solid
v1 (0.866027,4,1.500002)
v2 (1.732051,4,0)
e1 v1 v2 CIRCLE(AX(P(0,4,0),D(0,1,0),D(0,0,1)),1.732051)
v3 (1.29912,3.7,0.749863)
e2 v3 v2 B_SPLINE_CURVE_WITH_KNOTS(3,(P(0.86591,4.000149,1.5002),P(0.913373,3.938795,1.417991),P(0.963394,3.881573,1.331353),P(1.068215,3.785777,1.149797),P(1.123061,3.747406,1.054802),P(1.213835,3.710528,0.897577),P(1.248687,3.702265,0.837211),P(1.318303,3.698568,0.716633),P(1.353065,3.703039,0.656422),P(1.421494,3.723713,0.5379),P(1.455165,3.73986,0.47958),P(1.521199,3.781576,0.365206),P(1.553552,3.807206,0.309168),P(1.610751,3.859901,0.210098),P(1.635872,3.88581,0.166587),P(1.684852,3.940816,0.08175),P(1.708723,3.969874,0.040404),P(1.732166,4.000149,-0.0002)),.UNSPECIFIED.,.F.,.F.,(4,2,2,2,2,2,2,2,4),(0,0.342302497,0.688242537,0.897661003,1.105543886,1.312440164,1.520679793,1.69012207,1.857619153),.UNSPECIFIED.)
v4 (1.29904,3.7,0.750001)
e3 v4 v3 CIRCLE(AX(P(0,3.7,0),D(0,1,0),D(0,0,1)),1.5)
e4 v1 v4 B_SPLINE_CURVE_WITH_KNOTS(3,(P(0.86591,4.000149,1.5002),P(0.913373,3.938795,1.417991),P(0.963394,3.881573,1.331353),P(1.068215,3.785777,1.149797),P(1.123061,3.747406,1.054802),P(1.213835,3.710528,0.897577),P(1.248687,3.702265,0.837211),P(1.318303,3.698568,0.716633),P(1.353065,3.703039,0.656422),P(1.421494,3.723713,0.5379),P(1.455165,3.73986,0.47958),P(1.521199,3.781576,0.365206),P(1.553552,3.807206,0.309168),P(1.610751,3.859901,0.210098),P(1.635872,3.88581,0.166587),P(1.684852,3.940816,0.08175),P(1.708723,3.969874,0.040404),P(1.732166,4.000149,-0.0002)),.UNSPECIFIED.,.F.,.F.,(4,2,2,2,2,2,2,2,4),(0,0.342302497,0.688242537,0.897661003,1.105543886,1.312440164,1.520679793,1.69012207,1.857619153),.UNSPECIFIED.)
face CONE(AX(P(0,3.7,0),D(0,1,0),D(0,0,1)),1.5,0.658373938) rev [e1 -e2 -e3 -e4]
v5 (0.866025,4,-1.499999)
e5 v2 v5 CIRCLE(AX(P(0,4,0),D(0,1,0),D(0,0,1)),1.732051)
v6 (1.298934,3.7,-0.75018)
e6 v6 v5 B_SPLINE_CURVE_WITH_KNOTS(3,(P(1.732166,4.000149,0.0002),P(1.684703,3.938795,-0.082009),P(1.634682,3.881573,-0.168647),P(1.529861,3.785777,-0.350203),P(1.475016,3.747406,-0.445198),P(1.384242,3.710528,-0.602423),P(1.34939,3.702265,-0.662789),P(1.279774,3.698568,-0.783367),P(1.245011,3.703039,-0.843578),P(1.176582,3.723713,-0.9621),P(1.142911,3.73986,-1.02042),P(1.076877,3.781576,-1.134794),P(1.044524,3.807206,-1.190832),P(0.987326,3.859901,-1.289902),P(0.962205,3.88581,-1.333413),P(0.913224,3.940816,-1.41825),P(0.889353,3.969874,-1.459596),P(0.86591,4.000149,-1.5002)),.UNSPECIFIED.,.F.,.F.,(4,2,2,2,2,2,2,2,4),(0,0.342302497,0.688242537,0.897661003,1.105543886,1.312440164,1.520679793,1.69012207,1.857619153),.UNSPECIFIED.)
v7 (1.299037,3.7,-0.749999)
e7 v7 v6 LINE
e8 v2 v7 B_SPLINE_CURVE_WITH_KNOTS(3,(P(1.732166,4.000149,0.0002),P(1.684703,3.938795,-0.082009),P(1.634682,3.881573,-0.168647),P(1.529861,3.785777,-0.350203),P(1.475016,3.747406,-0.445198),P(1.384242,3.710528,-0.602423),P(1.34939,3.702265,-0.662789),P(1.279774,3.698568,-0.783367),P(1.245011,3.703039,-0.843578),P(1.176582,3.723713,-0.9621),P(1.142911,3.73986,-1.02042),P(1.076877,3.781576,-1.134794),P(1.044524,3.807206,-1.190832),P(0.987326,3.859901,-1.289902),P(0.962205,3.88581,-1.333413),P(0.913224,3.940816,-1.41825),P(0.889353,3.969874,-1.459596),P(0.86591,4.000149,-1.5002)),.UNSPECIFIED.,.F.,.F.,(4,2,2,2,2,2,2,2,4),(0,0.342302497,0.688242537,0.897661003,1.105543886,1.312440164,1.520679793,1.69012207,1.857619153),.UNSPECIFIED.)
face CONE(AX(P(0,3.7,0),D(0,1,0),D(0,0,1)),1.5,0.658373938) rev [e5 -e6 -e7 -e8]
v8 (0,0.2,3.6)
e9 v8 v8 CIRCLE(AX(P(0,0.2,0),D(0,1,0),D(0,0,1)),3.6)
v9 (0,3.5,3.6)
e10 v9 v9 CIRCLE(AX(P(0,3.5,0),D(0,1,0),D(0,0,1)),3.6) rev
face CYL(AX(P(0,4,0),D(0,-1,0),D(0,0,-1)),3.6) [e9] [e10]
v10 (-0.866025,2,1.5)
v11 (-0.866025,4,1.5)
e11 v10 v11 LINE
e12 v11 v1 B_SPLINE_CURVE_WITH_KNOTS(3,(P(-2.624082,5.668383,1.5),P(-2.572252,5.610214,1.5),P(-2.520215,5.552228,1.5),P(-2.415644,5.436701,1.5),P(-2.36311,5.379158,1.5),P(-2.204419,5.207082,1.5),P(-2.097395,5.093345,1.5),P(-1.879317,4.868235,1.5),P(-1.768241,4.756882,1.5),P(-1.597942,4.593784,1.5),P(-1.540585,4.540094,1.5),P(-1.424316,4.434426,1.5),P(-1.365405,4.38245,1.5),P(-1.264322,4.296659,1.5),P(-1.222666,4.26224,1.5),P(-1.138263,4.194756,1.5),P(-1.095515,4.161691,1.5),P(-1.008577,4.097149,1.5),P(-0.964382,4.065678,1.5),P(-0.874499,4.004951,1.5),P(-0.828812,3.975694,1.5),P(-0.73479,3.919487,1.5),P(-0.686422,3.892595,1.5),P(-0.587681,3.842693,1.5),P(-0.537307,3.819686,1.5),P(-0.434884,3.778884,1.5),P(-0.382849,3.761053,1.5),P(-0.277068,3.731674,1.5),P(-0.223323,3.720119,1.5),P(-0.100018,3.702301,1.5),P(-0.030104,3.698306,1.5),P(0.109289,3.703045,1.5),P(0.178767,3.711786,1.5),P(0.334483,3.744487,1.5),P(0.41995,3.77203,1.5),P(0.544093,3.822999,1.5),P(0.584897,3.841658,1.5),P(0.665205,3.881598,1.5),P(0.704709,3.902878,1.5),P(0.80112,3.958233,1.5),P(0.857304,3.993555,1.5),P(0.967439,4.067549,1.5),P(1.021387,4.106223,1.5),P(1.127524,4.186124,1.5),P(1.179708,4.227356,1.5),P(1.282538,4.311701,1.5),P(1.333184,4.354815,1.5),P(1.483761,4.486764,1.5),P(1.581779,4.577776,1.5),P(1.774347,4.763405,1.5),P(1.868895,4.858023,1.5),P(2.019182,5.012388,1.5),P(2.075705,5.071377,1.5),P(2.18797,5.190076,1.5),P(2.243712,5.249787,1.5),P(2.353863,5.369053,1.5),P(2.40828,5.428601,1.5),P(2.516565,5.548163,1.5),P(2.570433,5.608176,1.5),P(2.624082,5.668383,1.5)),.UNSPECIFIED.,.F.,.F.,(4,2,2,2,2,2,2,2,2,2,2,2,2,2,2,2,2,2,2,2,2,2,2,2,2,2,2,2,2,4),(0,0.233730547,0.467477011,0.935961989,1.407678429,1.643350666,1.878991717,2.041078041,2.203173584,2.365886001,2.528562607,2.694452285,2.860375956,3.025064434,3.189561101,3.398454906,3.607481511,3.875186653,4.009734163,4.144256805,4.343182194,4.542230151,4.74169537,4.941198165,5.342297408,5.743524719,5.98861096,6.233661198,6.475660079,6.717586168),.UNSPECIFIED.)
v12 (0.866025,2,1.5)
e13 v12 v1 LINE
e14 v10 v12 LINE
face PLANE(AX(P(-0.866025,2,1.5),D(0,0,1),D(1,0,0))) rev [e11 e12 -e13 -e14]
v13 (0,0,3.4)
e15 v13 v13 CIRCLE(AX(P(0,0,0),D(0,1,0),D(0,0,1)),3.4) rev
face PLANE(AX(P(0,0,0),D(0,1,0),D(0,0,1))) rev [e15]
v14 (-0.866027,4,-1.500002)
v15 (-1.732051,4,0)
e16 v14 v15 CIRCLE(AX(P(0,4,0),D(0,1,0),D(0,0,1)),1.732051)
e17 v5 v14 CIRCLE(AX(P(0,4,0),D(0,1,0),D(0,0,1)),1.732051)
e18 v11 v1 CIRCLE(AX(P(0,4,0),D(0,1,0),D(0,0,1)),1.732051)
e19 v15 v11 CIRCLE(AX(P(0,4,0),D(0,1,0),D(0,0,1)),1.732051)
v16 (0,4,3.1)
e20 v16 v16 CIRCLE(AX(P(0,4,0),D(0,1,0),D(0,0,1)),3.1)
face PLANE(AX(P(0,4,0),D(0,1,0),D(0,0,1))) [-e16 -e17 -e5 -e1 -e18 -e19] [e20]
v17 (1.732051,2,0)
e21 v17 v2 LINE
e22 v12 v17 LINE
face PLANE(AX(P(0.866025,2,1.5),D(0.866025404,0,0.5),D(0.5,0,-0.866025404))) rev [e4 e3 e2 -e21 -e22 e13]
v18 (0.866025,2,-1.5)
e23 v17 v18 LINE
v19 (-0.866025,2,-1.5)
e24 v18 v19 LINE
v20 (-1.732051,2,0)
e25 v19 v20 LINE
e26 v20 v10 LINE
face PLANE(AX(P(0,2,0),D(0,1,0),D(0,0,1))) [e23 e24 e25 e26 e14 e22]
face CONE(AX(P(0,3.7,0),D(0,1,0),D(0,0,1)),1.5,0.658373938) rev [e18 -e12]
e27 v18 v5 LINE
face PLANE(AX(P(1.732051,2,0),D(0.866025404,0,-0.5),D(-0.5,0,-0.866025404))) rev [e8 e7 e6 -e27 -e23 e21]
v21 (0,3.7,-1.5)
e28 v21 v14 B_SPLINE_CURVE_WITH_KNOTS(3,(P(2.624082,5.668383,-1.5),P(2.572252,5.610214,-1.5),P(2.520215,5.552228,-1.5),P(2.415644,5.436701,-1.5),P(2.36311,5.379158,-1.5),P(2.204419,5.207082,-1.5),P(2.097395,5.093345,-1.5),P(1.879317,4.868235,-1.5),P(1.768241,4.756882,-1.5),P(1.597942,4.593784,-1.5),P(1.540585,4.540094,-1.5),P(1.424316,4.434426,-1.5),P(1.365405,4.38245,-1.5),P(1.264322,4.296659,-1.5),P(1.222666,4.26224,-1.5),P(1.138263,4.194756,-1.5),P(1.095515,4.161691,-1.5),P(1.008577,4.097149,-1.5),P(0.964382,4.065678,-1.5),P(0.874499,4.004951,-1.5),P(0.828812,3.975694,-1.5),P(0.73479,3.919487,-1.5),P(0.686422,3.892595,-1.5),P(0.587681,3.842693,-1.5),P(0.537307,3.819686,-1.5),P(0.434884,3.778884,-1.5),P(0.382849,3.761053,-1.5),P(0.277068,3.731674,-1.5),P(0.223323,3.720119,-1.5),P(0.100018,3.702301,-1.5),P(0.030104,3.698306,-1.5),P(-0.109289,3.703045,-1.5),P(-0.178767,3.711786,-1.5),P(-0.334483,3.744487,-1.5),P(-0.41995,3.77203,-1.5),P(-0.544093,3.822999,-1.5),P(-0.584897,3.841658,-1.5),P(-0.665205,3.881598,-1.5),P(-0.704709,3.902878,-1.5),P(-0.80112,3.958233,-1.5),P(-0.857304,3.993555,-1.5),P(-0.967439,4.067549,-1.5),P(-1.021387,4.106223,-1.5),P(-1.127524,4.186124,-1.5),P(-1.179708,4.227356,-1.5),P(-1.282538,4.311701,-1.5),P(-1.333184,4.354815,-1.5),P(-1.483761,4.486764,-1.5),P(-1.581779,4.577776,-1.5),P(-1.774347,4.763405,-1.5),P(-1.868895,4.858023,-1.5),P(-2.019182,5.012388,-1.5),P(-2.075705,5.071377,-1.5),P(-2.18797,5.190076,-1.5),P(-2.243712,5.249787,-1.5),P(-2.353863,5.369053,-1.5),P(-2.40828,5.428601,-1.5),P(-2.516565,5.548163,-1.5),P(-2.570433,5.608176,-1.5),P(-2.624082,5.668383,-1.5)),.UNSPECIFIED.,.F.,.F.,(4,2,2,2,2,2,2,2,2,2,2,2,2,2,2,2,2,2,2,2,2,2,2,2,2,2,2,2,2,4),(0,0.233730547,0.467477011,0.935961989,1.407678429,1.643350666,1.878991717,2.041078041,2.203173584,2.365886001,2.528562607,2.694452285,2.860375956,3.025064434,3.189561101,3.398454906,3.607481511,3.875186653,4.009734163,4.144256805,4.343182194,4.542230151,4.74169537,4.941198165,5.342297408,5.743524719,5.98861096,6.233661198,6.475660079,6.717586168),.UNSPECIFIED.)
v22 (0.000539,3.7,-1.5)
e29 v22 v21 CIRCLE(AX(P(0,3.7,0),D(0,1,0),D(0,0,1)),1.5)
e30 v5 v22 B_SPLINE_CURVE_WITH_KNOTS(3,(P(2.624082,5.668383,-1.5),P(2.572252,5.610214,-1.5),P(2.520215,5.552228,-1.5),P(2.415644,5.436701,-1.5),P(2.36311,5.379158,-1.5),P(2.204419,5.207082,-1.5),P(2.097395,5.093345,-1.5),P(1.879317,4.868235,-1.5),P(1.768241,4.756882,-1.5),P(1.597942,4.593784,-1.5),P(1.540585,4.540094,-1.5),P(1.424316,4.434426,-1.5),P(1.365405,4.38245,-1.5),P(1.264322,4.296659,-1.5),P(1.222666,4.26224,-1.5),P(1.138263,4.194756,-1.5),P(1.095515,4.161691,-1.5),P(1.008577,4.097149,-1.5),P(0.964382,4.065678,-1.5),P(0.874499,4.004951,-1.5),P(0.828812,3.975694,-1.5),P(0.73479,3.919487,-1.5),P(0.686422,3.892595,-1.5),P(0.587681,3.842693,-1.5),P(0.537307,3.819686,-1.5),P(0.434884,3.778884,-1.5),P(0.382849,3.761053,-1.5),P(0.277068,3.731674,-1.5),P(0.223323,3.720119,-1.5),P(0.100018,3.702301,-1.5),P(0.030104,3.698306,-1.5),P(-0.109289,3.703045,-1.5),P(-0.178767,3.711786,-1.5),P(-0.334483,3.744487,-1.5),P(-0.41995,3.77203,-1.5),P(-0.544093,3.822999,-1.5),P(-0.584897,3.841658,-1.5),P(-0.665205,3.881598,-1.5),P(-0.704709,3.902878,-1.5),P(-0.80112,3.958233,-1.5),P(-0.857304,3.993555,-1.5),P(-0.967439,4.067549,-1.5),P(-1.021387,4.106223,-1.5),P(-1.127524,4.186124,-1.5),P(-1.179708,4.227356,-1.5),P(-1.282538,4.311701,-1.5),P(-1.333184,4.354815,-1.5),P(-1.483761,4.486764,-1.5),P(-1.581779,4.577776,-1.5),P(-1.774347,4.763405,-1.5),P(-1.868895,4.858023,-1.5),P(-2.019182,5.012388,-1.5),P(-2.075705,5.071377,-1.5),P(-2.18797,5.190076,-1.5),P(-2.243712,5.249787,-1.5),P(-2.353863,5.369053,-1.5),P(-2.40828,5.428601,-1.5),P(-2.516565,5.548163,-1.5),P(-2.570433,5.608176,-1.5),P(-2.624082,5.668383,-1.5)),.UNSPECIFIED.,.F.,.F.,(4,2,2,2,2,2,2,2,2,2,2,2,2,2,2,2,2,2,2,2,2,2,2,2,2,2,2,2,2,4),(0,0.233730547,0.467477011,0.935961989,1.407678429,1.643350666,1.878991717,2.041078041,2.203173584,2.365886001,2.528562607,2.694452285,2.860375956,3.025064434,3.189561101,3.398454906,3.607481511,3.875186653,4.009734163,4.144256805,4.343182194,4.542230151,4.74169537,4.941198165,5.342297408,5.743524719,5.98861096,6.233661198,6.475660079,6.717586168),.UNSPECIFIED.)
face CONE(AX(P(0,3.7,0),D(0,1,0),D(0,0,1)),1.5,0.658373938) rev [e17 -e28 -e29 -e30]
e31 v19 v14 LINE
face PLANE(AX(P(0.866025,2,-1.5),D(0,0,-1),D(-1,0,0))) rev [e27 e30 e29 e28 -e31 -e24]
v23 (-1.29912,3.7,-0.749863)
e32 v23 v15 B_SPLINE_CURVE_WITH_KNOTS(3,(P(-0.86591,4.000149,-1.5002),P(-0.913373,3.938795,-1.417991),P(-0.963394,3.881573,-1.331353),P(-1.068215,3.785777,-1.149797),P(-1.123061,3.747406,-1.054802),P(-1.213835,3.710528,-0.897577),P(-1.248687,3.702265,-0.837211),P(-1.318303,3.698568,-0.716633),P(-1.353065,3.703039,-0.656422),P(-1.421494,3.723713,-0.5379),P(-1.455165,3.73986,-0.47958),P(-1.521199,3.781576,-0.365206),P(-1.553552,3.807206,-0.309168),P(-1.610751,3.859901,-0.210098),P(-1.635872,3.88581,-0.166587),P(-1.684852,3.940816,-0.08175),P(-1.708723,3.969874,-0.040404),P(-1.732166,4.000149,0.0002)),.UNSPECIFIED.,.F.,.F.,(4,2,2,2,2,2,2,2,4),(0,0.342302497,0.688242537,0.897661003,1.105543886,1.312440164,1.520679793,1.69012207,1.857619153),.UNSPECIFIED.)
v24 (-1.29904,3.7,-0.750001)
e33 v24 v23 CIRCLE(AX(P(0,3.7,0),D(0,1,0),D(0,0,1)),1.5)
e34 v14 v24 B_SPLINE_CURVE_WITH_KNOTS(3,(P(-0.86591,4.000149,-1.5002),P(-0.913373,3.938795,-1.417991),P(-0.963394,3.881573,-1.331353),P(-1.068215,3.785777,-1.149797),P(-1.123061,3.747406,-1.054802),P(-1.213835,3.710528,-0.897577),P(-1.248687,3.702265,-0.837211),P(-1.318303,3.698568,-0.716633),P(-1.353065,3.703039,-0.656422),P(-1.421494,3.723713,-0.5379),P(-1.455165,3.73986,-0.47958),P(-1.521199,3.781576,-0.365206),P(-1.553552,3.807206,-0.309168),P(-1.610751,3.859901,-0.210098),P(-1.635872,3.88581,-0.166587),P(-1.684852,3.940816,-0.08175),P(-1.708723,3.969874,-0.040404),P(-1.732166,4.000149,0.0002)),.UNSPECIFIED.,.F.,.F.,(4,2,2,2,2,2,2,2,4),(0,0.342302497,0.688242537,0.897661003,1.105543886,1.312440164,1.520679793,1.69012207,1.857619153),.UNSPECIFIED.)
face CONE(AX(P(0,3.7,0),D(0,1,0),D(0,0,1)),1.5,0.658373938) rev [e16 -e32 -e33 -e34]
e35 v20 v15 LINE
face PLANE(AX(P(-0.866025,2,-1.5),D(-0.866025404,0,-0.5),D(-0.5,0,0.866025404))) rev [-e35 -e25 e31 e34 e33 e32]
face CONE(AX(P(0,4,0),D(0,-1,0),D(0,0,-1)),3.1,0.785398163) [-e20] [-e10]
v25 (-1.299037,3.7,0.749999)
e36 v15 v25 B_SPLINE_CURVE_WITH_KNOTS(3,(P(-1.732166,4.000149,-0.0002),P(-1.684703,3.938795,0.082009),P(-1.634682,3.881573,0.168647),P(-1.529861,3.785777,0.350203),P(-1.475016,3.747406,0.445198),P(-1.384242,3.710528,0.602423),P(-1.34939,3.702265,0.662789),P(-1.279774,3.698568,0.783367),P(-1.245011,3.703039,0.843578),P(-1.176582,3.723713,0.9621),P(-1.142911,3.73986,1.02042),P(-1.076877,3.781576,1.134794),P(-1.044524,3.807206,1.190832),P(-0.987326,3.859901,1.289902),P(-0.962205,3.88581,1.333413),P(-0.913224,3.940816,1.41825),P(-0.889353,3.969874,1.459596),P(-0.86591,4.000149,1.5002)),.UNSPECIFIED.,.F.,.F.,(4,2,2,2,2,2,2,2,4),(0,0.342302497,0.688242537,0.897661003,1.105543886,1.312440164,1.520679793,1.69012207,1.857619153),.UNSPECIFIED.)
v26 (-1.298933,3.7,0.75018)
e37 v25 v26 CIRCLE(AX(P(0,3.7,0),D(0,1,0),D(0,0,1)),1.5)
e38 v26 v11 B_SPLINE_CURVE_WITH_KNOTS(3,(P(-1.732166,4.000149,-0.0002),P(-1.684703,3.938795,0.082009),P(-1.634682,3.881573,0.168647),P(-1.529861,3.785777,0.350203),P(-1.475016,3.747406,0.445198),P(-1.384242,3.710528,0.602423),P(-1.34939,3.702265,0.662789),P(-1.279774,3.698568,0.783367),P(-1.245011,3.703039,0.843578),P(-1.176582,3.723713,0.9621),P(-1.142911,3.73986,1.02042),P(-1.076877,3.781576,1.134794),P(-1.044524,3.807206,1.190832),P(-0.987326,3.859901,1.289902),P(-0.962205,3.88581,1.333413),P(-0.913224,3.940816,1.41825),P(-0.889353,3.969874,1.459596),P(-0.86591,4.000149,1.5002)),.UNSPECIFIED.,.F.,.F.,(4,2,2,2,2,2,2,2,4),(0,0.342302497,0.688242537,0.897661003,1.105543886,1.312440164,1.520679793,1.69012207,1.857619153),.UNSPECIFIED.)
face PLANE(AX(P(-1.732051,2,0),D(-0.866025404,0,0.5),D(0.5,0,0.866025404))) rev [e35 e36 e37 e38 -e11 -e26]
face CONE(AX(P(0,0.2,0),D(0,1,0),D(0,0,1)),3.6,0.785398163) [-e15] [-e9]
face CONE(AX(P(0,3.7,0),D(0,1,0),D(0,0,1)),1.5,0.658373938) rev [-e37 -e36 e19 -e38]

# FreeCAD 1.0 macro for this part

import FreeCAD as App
import Part
import Sketcher
from FreeCAD import Vector
Q = App.Units.Quantity


def edges_at(feature, points):
    """Names of the edges that pass closest to the given points."""
    edges = feature.Shape.Edges
    near = lambda p: min(range(len(edges)), key=lambda i: edges[i].distToShape(Part.Vertex(*p))[0])
    return sorted({f"Edge{near(p) + 1}" for p in points})

doc = App.newDocument("Part")
params = doc.addObject("Spreadsheet::Sheet", "Params")
for row, (alias, value) in enumerate([
    ("sketch1_diameter", "7.2 mm"),
    ("pad1_length", "4 mm"),
    ("pocket1_length", "2 mm"),
    ("sketch4_diameter", "3 mm"),
    ("chamfer_size", "0.5 mm"),
    ("chamfer2_size", "0.2 mm"),
], start=1):
    params.set(f"A{row}", alias)
    params.set(f"B{row}", "=" + value)
    params.setAlias(f"B{row}", alias)

body = doc.addObject("PartDesign::Body", "Body")

# Sketch on XZ plane
sketch1 = body.newObject("Sketcher::SketchObject", "Sketch")
sketch1.AttachmentSupport = (doc.getObject("XZ_Plane"), [""])
sketch1.MapMode = "FlatFace"
sketch1.addGeometry(Part.Circle(Vector(0, 0, 0), Vector(0, 0, 1), 3.6), False)
sketch1.addConstraint(Sketcher.Constraint("Coincident", 0, 3, -1, 1))
sketch1.addConstraint(Sketcher.Constraint("Diameter", 0, 7.2))
sketch1.setExpression("Constraints[1]", "Params.sketch1_diameter")
pad1 = body.newObject("PartDesign::Pad", "Pad")
pad1.Profile = sketch1
pad1.setExpression("Length", "Params.pad1_length")
pad1.Reversed = True

# Sketch on XZ plane
sketch2 = body.newObject("Sketcher::SketchObject", "Sketch001")
sketch2.AttachmentSupport = (doc.getObject("XZ_Plane"), [""])
sketch2.MapMode = "FlatFace"
sketch2.AttachmentOffset = App.Placement(Vector(0, 0, -4), App.Rotation())
sketch2.addGeometry(Part.LineSegment(Vector(1.732051, 0, 0), Vector(0.866025, -1.5, 0)), False)
sketch2.addGeometry(Part.LineSegment(Vector(0.866025, -1.5, 0), Vector(-0.866025, -1.5, 0)), False)
sketch2.addGeometry(Part.LineSegment(Vector(-0.866025, -1.5, 0), Vector(-1.732051, 0, 0)), False)
sketch2.addGeometry(Part.LineSegment(Vector(-1.732051, 0, 0), Vector(-0.866025, 1.5, 0)), False)
sketch2.addGeometry(Part.LineSegment(Vector(-0.866025, 1.5, 0), Vector(0.866025, 1.5, 0)), False)
sketch2.addGeometry(Part.LineSegment(Vector(0.866025, 1.5, 0), Vector(1.732051, 0, 0)), False)
sketch2.addConstraint(Sketcher.Constraint("Coincident", 0, 2, 1, 1))
sketch2.addConstraint(Sketcher.Constraint("Coincident", 1, 2, 2, 1))
sketch2.addConstraint(Sketcher.Constraint("Coincident", 2, 2, 3, 1))
sketch2.addConstraint(Sketcher.Constraint("Coincident", 3, 2, 4, 1))
sketch2.addConstraint(Sketcher.Constraint("Coincident", 4, 2, 5, 1))
sketch2.addConstraint(Sketcher.Constraint("Coincident", 5, 2, 0, 1))
sketch2.addConstraint(Sketcher.Constraint("Horizontal", 1))
sketch2.addConstraint(Sketcher.Constraint("Horizontal", 4))
sketch2.addConstraint(Sketcher.Constraint("Symmetric", 0, 2, 3, 2, -1, 1))
sketch2.addConstraint(Sketcher.Constraint("Symmetric", 2, 2, 5, 2, -1, 1))
sketch2.addConstraint(Sketcher.Constraint("PointOnObject", 2, 2, -1))
sketch2.addConstraint(Sketcher.Constraint("Parallel", 2, 5))
sketch2.addConstraint(Sketcher.Constraint("Vertical", 1, 2, 3, 2))
sketch2.addConstraint(Sketcher.Constraint("Angle", 0, Q("-120 deg")))
sketch2.addConstraint(Sketcher.Constraint("DistanceY", 1, 2, 3, 2, 3.0))
sketch2.addConstraint(Sketcher.Constraint("DistanceX", 1, 2, 1, 1, 1.732051))
pocket1 = body.newObject("PartDesign::Pocket", "Pocket")
pocket1.Profile = sketch2
pocket1.setExpression("Length", "Params.pocket1_length")
pocket1.Reversed = True

# Sketch on XZ plane
sketch3 = body.newObject("Sketcher::SketchObject", "Sketch002")
sketch3.AttachmentSupport = (doc.getObject("XZ_Plane"), [""])
sketch3.MapMode = "FlatFace"
sketch3.AttachmentOffset = App.Placement(Vector(0, 0, -4), App.Rotation())
sketch3.addGeometry(Part.Circle(Vector(0, 0, 0), Vector(0, 0, 1), 1.732051), False)
sketch3.addConstraint(Sketcher.Constraint("Coincident", 0, 3, -1, 1))
sketch3.addConstraint(Sketcher.Constraint("Diameter", 0, 3.464102))

# Sketch on XZ plane
sketch4 = body.newObject("Sketcher::SketchObject", "Sketch003")
sketch4.AttachmentSupport = (doc.getObject("XZ_Plane"), [""])
sketch4.MapMode = "FlatFace"
sketch4.AttachmentOffset = App.Placement(Vector(0, 0, -3.7), App.Rotation())
sketch4.addGeometry(Part.Circle(Vector(0, 0, 0), Vector(0, 0, 1), 1.5), False)
sketch4.addConstraint(Sketcher.Constraint("Coincident", 0, 3, -1, 1))
sketch4.addConstraint(Sketcher.Constraint("Diameter", 0, 3.0))
sketch4.setExpression("Constraints[1]", "Params.sketch4_diameter")

subtractiveloft = body.newObject("PartDesign::SubtractiveLoft", "SubtractiveLoft")
subtractiveloft.Profile = sketch3
subtractiveloft.Sections = [sketch4]
doc.recompute()

chamfer = body.newObject("PartDesign::Chamfer", "Chamfer")
chamfer.Base = (subtractiveloft, edges_at(subtractiveloft, [(0, 4, -3.6)]))
chamfer.setExpression("Size", "Params.chamfer_size")
doc.recompute()

chamfer2 = body.newObject("PartDesign::Chamfer", "Chamfer001")
chamfer2.Base = (chamfer, edges_at(chamfer, [(0, 0, -3.6)]))
chamfer2.setExpression("Size", "Params.chamfer2_size")

doc.recompute()
